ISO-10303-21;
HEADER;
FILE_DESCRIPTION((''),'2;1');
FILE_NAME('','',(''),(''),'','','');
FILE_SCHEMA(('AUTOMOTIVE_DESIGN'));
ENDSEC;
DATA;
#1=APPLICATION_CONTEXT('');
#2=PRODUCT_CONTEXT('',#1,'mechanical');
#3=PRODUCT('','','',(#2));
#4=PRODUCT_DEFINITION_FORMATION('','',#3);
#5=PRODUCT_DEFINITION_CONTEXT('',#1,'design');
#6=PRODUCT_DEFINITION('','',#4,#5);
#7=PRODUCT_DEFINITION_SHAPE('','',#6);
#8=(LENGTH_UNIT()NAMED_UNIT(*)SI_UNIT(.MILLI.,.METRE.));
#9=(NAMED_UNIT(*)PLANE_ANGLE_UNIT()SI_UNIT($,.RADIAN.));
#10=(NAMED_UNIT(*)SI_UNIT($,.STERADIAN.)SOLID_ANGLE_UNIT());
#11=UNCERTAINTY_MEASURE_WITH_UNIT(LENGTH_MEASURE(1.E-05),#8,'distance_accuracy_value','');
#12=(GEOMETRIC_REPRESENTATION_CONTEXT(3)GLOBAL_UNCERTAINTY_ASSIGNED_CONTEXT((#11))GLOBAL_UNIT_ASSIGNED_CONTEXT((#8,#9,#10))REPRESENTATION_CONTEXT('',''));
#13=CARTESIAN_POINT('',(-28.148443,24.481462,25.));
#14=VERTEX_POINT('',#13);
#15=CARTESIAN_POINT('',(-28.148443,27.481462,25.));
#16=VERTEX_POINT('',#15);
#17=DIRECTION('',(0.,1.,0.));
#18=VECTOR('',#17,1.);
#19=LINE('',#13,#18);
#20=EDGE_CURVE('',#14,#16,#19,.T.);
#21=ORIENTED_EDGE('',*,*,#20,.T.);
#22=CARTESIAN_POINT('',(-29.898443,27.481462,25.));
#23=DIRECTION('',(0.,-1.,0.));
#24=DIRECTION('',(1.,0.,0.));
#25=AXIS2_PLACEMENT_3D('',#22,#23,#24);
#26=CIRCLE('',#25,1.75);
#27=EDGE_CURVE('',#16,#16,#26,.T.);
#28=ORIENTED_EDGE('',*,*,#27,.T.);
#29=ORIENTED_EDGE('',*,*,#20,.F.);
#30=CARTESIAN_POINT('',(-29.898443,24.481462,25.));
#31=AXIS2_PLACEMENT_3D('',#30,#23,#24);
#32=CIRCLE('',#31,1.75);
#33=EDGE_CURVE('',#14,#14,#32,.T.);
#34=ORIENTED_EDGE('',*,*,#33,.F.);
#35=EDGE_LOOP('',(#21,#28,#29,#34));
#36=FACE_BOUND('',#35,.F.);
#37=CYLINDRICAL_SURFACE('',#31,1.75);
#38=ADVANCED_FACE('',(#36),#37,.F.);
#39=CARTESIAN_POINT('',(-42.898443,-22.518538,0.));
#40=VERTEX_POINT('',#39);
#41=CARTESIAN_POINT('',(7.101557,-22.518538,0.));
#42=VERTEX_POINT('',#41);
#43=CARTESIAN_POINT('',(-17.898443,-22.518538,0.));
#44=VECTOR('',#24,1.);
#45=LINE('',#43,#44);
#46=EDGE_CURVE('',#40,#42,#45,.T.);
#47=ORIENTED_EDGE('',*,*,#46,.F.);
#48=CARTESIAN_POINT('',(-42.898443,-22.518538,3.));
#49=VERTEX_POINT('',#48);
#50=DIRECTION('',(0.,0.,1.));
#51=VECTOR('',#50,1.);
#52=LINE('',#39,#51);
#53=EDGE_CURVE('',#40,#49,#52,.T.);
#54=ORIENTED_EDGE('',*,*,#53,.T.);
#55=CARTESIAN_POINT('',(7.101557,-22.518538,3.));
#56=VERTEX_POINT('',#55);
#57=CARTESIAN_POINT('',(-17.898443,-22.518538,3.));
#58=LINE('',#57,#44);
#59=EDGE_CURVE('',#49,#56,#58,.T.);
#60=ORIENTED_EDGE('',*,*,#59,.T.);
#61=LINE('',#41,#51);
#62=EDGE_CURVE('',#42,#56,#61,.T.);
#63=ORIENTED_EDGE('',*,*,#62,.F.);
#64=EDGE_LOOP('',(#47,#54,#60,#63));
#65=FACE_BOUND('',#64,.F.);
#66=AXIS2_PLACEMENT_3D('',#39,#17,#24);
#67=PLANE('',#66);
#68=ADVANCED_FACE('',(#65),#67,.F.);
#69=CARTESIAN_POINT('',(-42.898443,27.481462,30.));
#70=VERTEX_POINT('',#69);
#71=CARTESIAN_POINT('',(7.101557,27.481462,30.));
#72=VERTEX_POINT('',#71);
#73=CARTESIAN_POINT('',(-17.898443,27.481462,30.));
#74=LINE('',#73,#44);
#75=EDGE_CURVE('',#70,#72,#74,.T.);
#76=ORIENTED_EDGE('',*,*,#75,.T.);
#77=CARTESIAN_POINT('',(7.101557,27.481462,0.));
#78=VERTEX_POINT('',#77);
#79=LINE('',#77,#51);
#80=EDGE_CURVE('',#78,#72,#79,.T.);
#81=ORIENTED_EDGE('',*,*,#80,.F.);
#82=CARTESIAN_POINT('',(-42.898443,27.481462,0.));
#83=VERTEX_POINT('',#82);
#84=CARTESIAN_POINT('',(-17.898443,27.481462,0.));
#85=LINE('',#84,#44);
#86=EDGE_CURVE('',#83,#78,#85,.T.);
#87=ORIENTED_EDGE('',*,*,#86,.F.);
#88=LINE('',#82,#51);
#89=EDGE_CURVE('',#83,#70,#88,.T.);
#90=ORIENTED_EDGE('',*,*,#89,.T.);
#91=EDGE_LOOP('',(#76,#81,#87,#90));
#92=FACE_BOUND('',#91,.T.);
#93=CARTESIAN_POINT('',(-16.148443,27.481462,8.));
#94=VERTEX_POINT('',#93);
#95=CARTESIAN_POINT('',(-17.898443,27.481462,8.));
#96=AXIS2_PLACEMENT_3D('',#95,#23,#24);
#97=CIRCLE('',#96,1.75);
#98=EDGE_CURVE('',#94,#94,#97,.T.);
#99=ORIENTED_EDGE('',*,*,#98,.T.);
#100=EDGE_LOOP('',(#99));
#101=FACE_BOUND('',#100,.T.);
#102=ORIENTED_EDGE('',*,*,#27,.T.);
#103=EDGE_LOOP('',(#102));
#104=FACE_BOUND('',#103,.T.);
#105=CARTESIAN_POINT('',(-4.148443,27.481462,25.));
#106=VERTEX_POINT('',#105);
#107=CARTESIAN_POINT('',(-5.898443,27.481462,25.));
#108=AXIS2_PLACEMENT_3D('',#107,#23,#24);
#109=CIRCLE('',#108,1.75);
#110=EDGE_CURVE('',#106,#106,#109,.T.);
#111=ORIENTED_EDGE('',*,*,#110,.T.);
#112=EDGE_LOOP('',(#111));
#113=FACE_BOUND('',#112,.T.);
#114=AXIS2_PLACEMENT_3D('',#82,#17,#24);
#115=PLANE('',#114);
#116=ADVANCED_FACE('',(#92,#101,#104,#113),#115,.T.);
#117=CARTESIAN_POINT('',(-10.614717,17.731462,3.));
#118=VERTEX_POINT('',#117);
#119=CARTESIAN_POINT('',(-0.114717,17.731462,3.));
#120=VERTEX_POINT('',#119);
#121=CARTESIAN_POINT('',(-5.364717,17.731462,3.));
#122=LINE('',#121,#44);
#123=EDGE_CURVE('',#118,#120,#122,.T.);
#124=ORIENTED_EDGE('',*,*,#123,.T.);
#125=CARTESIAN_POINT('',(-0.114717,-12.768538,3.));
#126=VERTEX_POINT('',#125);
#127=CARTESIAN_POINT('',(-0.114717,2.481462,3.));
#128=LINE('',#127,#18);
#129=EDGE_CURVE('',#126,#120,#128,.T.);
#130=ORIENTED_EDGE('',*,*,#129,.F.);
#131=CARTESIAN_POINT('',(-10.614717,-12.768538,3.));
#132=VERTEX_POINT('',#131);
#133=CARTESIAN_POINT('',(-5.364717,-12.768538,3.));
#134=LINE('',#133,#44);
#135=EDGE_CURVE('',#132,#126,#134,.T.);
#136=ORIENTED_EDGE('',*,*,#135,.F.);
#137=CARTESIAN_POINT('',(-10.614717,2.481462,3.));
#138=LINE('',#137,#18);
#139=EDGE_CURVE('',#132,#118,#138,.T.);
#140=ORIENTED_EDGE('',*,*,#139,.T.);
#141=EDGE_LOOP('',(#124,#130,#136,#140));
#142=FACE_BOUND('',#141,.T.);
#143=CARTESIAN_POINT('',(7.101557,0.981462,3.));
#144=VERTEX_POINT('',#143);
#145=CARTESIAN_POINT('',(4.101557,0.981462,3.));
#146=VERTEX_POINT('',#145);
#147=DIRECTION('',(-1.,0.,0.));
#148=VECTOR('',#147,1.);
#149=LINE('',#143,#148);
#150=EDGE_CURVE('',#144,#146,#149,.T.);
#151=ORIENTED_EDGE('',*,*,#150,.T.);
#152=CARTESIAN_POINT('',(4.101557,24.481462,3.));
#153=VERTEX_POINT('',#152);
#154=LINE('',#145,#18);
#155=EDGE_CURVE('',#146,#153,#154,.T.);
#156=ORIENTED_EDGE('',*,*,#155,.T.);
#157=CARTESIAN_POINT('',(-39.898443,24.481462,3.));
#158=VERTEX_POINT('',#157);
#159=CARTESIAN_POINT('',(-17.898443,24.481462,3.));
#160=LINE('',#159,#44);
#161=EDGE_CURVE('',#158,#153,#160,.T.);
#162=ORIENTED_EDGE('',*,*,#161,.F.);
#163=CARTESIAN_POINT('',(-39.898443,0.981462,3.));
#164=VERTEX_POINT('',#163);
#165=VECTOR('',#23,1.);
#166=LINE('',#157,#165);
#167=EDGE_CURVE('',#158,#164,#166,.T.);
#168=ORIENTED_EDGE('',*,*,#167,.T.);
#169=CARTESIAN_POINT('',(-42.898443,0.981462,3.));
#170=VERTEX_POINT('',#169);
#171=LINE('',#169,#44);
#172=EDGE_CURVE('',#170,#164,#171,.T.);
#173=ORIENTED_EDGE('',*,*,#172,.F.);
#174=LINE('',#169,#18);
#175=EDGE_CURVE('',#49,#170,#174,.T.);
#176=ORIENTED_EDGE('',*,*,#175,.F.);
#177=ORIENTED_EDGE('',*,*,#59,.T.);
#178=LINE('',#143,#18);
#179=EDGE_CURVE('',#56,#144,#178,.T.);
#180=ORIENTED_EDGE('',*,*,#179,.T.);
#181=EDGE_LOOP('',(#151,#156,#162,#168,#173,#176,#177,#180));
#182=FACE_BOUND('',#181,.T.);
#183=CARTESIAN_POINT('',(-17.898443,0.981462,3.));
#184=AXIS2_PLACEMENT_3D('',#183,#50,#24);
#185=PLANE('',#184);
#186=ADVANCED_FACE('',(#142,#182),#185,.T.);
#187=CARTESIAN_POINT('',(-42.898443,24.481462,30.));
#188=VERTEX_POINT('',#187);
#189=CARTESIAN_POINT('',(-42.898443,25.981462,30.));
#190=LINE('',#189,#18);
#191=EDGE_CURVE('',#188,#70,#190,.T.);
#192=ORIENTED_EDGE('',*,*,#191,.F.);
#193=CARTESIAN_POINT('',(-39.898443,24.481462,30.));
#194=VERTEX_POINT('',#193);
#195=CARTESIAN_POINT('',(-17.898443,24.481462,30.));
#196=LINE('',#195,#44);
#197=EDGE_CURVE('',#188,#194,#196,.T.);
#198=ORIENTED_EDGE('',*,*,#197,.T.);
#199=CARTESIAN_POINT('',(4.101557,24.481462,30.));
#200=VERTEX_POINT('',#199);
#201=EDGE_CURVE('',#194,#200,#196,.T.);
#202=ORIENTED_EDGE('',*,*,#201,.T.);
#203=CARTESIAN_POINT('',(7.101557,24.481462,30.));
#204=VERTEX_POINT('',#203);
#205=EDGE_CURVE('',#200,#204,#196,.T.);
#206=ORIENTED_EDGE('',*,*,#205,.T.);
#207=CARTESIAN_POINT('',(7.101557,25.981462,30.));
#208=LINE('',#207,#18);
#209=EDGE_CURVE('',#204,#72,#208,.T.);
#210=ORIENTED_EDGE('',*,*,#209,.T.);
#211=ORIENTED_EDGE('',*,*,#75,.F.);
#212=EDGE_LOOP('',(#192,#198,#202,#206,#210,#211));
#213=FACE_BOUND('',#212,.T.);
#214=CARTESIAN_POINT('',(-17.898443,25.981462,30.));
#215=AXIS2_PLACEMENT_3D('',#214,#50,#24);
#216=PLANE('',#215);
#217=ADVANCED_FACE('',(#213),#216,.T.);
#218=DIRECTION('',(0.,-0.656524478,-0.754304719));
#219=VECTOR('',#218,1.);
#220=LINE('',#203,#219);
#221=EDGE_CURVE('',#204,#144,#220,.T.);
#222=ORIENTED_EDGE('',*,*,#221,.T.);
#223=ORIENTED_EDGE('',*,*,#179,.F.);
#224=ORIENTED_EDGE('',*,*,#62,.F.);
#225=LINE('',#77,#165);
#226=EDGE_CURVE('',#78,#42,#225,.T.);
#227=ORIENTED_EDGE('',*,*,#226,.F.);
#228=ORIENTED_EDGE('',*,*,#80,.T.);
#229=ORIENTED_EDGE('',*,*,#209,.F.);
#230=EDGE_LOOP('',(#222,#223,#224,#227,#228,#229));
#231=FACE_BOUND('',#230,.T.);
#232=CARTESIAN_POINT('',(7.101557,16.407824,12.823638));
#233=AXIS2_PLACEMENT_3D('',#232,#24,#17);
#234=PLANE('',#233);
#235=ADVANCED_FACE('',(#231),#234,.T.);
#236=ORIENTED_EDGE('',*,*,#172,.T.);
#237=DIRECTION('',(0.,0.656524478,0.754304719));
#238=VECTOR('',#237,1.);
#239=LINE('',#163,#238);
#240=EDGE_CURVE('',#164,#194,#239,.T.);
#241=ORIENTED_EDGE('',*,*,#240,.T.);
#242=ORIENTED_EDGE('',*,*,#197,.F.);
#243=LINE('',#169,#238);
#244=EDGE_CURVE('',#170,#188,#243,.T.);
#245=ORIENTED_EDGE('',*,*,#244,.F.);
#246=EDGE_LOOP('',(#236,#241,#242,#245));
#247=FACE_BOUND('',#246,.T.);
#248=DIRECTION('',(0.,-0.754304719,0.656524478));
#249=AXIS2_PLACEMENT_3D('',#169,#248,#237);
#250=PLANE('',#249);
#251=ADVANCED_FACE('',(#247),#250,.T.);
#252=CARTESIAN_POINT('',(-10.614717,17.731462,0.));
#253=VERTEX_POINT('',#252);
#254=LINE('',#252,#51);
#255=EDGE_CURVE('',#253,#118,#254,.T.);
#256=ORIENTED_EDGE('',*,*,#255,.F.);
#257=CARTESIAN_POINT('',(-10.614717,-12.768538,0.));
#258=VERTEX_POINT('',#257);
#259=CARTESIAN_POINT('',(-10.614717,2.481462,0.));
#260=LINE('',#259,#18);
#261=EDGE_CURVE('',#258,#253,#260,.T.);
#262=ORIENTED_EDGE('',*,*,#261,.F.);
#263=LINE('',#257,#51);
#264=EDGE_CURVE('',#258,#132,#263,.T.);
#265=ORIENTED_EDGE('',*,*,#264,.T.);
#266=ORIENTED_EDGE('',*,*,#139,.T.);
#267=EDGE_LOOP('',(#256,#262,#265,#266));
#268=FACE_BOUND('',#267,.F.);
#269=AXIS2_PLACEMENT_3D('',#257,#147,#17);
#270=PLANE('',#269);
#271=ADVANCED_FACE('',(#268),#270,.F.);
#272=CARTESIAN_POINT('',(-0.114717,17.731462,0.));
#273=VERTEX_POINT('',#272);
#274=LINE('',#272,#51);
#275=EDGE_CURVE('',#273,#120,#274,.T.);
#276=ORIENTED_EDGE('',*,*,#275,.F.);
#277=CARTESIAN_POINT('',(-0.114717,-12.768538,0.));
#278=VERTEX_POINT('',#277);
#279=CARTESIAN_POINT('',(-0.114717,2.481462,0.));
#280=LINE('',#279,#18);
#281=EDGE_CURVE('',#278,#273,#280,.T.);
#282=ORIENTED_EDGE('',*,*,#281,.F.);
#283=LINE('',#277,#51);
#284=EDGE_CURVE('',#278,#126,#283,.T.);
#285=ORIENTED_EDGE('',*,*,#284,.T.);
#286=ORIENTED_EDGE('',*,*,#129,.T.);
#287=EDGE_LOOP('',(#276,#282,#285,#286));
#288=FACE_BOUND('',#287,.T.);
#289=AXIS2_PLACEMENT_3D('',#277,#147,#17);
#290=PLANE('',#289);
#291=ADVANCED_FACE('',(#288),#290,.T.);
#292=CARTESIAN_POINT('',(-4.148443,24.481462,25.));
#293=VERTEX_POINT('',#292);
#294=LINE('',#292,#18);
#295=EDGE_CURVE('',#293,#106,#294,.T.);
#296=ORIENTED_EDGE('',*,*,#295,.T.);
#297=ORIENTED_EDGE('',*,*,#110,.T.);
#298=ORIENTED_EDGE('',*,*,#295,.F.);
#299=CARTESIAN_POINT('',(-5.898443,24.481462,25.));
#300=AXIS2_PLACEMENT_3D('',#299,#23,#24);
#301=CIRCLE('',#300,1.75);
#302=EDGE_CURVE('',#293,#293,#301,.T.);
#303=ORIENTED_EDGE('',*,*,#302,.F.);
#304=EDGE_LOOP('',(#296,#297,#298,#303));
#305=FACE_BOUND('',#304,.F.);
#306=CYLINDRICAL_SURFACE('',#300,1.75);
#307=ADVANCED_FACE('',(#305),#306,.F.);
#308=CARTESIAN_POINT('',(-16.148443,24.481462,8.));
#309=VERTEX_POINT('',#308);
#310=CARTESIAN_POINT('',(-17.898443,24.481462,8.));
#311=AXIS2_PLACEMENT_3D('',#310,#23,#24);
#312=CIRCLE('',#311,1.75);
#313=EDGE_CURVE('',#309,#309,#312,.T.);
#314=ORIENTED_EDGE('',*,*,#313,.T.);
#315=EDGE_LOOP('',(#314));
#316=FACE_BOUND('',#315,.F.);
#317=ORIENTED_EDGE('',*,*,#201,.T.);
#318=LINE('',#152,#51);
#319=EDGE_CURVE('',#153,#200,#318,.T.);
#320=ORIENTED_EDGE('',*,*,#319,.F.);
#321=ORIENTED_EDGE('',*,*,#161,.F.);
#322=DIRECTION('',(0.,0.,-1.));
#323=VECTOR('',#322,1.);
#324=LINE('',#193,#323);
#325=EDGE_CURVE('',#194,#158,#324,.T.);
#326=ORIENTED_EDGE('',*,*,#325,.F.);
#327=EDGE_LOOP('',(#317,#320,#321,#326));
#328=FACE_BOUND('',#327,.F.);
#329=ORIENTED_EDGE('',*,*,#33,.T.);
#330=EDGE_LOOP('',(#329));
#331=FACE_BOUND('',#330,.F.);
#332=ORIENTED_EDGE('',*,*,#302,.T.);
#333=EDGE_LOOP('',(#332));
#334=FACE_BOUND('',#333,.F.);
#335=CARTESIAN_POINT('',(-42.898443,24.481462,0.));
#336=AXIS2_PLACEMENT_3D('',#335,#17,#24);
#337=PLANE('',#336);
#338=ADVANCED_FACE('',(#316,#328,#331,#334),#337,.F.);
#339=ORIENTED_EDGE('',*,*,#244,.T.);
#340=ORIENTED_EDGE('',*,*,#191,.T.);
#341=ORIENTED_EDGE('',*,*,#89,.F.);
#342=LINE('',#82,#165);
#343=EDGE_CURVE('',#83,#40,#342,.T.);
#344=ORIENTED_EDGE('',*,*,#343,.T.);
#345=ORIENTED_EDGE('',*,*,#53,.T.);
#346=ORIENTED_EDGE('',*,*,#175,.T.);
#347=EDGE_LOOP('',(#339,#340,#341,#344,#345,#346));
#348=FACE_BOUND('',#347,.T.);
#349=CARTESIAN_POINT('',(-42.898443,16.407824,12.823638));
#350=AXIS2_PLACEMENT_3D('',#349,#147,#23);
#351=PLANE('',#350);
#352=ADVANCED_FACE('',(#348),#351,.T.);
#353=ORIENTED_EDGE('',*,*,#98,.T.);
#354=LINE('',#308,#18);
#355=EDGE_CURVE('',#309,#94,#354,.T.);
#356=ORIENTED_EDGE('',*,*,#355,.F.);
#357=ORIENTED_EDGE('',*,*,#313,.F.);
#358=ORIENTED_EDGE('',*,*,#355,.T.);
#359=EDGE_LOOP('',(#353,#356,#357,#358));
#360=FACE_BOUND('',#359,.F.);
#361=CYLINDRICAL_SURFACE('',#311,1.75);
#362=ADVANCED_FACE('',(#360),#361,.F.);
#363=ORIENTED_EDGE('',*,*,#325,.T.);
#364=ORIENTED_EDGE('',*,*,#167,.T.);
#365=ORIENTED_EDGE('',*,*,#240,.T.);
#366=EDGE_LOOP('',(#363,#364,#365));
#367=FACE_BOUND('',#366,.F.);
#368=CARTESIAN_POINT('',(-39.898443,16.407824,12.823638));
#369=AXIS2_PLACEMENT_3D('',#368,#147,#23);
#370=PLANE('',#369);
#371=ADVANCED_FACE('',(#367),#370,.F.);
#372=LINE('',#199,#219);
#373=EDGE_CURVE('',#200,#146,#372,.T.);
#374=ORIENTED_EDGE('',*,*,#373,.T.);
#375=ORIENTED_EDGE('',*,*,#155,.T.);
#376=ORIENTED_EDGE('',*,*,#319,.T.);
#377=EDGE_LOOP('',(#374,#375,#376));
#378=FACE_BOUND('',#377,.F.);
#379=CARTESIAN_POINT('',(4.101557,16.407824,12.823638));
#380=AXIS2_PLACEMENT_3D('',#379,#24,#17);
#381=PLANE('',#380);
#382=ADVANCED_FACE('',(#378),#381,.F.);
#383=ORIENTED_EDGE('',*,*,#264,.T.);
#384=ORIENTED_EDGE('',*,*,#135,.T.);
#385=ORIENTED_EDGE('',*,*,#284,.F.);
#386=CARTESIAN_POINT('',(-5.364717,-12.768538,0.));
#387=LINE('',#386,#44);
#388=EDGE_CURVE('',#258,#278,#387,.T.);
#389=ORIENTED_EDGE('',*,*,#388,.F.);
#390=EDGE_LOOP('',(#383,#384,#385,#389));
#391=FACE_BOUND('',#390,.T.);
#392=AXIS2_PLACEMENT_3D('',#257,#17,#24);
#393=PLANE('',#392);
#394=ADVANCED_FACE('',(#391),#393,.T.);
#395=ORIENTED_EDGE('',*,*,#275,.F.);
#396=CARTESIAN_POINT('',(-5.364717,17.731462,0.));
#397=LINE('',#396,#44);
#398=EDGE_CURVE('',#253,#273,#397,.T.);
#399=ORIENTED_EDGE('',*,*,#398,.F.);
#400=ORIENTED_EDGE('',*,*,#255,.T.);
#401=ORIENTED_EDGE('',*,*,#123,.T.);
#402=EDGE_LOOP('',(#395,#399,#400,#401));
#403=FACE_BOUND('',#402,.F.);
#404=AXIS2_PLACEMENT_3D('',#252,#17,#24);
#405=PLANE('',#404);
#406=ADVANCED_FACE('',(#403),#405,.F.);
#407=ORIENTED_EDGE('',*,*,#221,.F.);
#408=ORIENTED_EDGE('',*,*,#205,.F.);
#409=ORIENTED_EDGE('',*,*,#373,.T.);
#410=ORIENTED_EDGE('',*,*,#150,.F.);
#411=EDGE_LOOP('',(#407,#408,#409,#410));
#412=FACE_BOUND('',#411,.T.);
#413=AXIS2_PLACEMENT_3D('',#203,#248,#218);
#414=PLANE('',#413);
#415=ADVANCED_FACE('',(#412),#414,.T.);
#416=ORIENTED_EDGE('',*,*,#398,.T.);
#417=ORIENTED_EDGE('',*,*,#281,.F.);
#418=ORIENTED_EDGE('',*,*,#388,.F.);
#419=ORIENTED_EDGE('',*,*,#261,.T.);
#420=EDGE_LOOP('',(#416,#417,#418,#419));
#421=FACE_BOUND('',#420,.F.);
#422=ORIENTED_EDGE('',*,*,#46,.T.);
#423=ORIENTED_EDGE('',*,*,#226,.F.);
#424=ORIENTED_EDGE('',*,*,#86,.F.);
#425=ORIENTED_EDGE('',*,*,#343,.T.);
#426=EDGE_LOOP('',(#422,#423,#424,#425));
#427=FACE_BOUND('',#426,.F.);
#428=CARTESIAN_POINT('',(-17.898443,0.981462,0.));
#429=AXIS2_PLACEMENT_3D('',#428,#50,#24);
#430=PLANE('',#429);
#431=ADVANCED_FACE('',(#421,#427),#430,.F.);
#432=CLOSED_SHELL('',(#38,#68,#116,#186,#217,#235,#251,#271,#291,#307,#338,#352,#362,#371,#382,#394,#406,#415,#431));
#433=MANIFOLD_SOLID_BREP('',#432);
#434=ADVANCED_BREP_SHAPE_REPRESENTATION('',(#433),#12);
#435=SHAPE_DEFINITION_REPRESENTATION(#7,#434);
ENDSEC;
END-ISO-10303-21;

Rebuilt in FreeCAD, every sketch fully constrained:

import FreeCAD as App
import Part
import Sketcher

V = App.Vector
Q = App.Units.Quantity


def add_polygon(sketch, points):
    """Adds a closed chain of lines whose ends are joined by coincident constraints."""
    first, n = sketch.GeometryCount, len(points)
    for a, b in zip(points, points[1:] + points[:1]):
        sketch.addGeometry(Part.LineSegment(App.Vector(*a, 0), App.Vector(*b, 0)), False)
    for i in range(n):
        sketch.addConstraint(Sketcher.Constraint("Coincident", first + i, 2, first + (i + 1) % n, 1))

doc = App.newDocument("Part")
body = doc.addObject("PartDesign::Body", "Body")

# Sketch on XY plane
sketch1 = doc.addObject("Sketcher::SketchObject", "Sketch")
body.addObject(sketch1)
sketch1.AttachmentSupport = (doc.XY_Plane, [""])
sketch1.MapMode = "FlatFace"
add_polygon(sketch1, [(-42.9, 27.5), (-42.9, 24.5), (7.1, 24.5), (7.1, 27.5)])  # lines 0-3
sketch1.addConstraint([
    Sketcher.Constraint("Vertical", 0),
    Sketcher.Constraint("Horizontal", 1),
    Sketcher.Constraint("Vertical", 2),
    Sketcher.Constraint("Horizontal", 3),
    Sketcher.Constraint("DistanceX", 1, 1, 1, 2, Q("50 mm")),
    Sketcher.Constraint("DistanceY", 0, 2, 0, 1, Q("3 mm")),
    Sketcher.Constraint("DistanceX", 0, 2, -1, 1, Q("42.898443 mm")),
    Sketcher.Constraint("DistanceY", -1, 1, 0, 2, Q("24.481462 mm")),
])
pad1 = doc.addObject("PartDesign::Pad", "Pad")
body.addObject(pad1)
pad1.Profile = sketch1
pad1.Length = 30

# Sketch on XY plane
sketch2 = doc.addObject("Sketcher::SketchObject", "Sketch001")
body.addObject(sketch2)
sketch2.AttachmentSupport = (doc.XY_Plane, [""])
sketch2.MapMode = "FlatFace"
add_polygon(sketch2, [(-43, 24), (-43, -23), (7, -23), (7, 24)])  # lines 0-3
add_polygon(sketch2, [(0, -13), (-11, -13), (-11, 18), (0, 18)])  # lines 4-7
sketch2.addConstraint([
    Sketcher.Constraint("Vertical", 0),
    Sketcher.Constraint("Horizontal", 1),
    Sketcher.Constraint("Vertical", 2),
    Sketcher.Constraint("Horizontal", 3),
    Sketcher.Constraint("Horizontal", 4),
    Sketcher.Constraint("Vertical", 5),
    Sketcher.Constraint("Horizontal", 6),
    Sketcher.Constraint("Vertical", 7),
    Sketcher.Constraint("DistanceX", 1, 1, 1, 2, Q("50 mm")),
    Sketcher.Constraint("DistanceY", 0, 2, 0, 1, Q("47 mm")),
    Sketcher.Constraint("DistanceX", 4, 2, 4, 1, Q("10.5 mm")),
    Sketcher.Constraint("DistanceY", 5, 1, 5, 2, Q("30.5 mm")),
    Sketcher.Constraint("DistanceY", 1, 2, 4, 2, Q("9.75 mm")),
    Sketcher.Constraint("DistanceX", 0, 2, -1, 1, Q("42.898443 mm")),
    Sketcher.Constraint("DistanceY", 0, 2, -1, 1, Q("22.518538 mm")),
    Sketcher.Constraint("DistanceX", 4, 2, -1, 1, Q("10.614717 mm")),
])
pad2 = doc.addObject("PartDesign::Pad", "Pad001")
body.addObject(pad2)
pad2.Profile = sketch2
pad2.Length = 3

# Sketch on YZ plane
sketch3 = doc.addObject("Sketcher::SketchObject", "Sketch002")
body.addObject(sketch3)
sketch3.AttachmentSupport = (doc.YZ_Plane, [""])
sketch3.MapMode = "FlatFace"
sketch3.AttachmentOffset = App.Placement(V(0, 0, -42.898443), App.Rotation())
add_polygon(sketch3, [(1, 3), (24, 30), (24, 3)])  # lines 0-2
sketch3.addConstraint([
    Sketcher.Constraint("Vertical", 1),
    Sketcher.Constraint("Horizontal", 2),
    Sketcher.Constraint("DistanceY", 1, 2, 1, 1, Q("27 mm")),
    Sketcher.Constraint("DistanceX", 2, 2, 2, 1, Q("23.5 mm")),
    Sketcher.Constraint("DistanceY", -1, 1, 0, 2, Q("30 mm")),
    Sketcher.Constraint("DistanceX", -1, 1, 0, 2, Q("24.481462 mm")),
])
pad3 = doc.addObject("PartDesign::Pad", "Pad002")
body.addObject(pad3)
pad3.Profile = sketch3
pad3.Length = 3

# Sketch on YZ plane
sketch4 = doc.addObject("Sketcher::SketchObject", "Sketch003")
body.addObject(sketch4)
sketch4.AttachmentSupport = (doc.YZ_Plane, [""])
sketch4.MapMode = "FlatFace"
sketch4.AttachmentOffset = App.Placement(V(0, 0, 7.101557), App.Rotation())
add_polygon(sketch4, [(24, 3), (24, 30), (1, 3)])  # lines 0-2
sketch4.addConstraint([
    Sketcher.Constraint("Vertical", 0),
    Sketcher.Constraint("Horizontal", 2),
    Sketcher.Constraint("DistanceY", 0, 1, 0, 2, Q("27 mm")),
    Sketcher.Constraint("DistanceX", 2, 1, 2, 2, Q("23.5 mm")),
    Sketcher.Constraint("DistanceY", -1, 1, 0, 2, Q("30 mm")),
    Sketcher.Constraint("DistanceX", -1, 1, 0, 2, Q("24.481462 mm")),
])
pad4 = doc.addObject("PartDesign::Pad", "Pad003")
body.addObject(pad4)
pad4.Profile = sketch4
pad4.Length = 3
pad4.Reversed = True

# Sketch on XZ plane
sketch5 = doc.addObject("Sketcher::SketchObject", "Sketch004")
body.addObject(sketch5)
sketch5.AttachmentSupport = (doc.XZ_Plane, [""])
sketch5.MapMode = "FlatFace"
sketch5.AttachmentOffset = App.Placement(V(0, 0, -24.481462), App.Rotation())
sketch5.addGeometry([
    Part.Circle(V(-29.9, 25, 0), V(0, 0, 1), 1.8),
    Part.Circle(V(-5.9, 25, 0), V(0, 0, 1), 1.8),
    Part.Circle(V(-17.9, 8, 0), V(0, 0, 1), 1.8),
], False)
sketch5.addConstraint([
    Sketcher.Constraint("Equal", 0, 1),
    Sketcher.Constraint("Equal", 1, 2),
    Sketcher.Constraint("Horizontal", 0, 3, 1, 3),
    Sketcher.Constraint("Diameter", 0, Q("3.5 mm")),
    Sketcher.Constraint("DistanceY", -1, 1, 0, 3, Q("25 mm")),
    Sketcher.Constraint("DistanceY", -1, 1, 2, 3, Q("8 mm")),
    Sketcher.Constraint("DistanceX", 0, 3, 1, 3, Q("24 mm")),
    Sketcher.Constraint("DistanceX", 0, 3, 2, 3, Q("12 mm")),
    Sketcher.Constraint("DistanceX", 0, 3, -1, 1, Q("29.898443 mm")),
])
pocket1 = doc.addObject("PartDesign::Pocket", "Pocket")
body.addObject(pocket1)
pocket1.Profile = sketch5
pocket1.Length = 3

doc.recompute()
